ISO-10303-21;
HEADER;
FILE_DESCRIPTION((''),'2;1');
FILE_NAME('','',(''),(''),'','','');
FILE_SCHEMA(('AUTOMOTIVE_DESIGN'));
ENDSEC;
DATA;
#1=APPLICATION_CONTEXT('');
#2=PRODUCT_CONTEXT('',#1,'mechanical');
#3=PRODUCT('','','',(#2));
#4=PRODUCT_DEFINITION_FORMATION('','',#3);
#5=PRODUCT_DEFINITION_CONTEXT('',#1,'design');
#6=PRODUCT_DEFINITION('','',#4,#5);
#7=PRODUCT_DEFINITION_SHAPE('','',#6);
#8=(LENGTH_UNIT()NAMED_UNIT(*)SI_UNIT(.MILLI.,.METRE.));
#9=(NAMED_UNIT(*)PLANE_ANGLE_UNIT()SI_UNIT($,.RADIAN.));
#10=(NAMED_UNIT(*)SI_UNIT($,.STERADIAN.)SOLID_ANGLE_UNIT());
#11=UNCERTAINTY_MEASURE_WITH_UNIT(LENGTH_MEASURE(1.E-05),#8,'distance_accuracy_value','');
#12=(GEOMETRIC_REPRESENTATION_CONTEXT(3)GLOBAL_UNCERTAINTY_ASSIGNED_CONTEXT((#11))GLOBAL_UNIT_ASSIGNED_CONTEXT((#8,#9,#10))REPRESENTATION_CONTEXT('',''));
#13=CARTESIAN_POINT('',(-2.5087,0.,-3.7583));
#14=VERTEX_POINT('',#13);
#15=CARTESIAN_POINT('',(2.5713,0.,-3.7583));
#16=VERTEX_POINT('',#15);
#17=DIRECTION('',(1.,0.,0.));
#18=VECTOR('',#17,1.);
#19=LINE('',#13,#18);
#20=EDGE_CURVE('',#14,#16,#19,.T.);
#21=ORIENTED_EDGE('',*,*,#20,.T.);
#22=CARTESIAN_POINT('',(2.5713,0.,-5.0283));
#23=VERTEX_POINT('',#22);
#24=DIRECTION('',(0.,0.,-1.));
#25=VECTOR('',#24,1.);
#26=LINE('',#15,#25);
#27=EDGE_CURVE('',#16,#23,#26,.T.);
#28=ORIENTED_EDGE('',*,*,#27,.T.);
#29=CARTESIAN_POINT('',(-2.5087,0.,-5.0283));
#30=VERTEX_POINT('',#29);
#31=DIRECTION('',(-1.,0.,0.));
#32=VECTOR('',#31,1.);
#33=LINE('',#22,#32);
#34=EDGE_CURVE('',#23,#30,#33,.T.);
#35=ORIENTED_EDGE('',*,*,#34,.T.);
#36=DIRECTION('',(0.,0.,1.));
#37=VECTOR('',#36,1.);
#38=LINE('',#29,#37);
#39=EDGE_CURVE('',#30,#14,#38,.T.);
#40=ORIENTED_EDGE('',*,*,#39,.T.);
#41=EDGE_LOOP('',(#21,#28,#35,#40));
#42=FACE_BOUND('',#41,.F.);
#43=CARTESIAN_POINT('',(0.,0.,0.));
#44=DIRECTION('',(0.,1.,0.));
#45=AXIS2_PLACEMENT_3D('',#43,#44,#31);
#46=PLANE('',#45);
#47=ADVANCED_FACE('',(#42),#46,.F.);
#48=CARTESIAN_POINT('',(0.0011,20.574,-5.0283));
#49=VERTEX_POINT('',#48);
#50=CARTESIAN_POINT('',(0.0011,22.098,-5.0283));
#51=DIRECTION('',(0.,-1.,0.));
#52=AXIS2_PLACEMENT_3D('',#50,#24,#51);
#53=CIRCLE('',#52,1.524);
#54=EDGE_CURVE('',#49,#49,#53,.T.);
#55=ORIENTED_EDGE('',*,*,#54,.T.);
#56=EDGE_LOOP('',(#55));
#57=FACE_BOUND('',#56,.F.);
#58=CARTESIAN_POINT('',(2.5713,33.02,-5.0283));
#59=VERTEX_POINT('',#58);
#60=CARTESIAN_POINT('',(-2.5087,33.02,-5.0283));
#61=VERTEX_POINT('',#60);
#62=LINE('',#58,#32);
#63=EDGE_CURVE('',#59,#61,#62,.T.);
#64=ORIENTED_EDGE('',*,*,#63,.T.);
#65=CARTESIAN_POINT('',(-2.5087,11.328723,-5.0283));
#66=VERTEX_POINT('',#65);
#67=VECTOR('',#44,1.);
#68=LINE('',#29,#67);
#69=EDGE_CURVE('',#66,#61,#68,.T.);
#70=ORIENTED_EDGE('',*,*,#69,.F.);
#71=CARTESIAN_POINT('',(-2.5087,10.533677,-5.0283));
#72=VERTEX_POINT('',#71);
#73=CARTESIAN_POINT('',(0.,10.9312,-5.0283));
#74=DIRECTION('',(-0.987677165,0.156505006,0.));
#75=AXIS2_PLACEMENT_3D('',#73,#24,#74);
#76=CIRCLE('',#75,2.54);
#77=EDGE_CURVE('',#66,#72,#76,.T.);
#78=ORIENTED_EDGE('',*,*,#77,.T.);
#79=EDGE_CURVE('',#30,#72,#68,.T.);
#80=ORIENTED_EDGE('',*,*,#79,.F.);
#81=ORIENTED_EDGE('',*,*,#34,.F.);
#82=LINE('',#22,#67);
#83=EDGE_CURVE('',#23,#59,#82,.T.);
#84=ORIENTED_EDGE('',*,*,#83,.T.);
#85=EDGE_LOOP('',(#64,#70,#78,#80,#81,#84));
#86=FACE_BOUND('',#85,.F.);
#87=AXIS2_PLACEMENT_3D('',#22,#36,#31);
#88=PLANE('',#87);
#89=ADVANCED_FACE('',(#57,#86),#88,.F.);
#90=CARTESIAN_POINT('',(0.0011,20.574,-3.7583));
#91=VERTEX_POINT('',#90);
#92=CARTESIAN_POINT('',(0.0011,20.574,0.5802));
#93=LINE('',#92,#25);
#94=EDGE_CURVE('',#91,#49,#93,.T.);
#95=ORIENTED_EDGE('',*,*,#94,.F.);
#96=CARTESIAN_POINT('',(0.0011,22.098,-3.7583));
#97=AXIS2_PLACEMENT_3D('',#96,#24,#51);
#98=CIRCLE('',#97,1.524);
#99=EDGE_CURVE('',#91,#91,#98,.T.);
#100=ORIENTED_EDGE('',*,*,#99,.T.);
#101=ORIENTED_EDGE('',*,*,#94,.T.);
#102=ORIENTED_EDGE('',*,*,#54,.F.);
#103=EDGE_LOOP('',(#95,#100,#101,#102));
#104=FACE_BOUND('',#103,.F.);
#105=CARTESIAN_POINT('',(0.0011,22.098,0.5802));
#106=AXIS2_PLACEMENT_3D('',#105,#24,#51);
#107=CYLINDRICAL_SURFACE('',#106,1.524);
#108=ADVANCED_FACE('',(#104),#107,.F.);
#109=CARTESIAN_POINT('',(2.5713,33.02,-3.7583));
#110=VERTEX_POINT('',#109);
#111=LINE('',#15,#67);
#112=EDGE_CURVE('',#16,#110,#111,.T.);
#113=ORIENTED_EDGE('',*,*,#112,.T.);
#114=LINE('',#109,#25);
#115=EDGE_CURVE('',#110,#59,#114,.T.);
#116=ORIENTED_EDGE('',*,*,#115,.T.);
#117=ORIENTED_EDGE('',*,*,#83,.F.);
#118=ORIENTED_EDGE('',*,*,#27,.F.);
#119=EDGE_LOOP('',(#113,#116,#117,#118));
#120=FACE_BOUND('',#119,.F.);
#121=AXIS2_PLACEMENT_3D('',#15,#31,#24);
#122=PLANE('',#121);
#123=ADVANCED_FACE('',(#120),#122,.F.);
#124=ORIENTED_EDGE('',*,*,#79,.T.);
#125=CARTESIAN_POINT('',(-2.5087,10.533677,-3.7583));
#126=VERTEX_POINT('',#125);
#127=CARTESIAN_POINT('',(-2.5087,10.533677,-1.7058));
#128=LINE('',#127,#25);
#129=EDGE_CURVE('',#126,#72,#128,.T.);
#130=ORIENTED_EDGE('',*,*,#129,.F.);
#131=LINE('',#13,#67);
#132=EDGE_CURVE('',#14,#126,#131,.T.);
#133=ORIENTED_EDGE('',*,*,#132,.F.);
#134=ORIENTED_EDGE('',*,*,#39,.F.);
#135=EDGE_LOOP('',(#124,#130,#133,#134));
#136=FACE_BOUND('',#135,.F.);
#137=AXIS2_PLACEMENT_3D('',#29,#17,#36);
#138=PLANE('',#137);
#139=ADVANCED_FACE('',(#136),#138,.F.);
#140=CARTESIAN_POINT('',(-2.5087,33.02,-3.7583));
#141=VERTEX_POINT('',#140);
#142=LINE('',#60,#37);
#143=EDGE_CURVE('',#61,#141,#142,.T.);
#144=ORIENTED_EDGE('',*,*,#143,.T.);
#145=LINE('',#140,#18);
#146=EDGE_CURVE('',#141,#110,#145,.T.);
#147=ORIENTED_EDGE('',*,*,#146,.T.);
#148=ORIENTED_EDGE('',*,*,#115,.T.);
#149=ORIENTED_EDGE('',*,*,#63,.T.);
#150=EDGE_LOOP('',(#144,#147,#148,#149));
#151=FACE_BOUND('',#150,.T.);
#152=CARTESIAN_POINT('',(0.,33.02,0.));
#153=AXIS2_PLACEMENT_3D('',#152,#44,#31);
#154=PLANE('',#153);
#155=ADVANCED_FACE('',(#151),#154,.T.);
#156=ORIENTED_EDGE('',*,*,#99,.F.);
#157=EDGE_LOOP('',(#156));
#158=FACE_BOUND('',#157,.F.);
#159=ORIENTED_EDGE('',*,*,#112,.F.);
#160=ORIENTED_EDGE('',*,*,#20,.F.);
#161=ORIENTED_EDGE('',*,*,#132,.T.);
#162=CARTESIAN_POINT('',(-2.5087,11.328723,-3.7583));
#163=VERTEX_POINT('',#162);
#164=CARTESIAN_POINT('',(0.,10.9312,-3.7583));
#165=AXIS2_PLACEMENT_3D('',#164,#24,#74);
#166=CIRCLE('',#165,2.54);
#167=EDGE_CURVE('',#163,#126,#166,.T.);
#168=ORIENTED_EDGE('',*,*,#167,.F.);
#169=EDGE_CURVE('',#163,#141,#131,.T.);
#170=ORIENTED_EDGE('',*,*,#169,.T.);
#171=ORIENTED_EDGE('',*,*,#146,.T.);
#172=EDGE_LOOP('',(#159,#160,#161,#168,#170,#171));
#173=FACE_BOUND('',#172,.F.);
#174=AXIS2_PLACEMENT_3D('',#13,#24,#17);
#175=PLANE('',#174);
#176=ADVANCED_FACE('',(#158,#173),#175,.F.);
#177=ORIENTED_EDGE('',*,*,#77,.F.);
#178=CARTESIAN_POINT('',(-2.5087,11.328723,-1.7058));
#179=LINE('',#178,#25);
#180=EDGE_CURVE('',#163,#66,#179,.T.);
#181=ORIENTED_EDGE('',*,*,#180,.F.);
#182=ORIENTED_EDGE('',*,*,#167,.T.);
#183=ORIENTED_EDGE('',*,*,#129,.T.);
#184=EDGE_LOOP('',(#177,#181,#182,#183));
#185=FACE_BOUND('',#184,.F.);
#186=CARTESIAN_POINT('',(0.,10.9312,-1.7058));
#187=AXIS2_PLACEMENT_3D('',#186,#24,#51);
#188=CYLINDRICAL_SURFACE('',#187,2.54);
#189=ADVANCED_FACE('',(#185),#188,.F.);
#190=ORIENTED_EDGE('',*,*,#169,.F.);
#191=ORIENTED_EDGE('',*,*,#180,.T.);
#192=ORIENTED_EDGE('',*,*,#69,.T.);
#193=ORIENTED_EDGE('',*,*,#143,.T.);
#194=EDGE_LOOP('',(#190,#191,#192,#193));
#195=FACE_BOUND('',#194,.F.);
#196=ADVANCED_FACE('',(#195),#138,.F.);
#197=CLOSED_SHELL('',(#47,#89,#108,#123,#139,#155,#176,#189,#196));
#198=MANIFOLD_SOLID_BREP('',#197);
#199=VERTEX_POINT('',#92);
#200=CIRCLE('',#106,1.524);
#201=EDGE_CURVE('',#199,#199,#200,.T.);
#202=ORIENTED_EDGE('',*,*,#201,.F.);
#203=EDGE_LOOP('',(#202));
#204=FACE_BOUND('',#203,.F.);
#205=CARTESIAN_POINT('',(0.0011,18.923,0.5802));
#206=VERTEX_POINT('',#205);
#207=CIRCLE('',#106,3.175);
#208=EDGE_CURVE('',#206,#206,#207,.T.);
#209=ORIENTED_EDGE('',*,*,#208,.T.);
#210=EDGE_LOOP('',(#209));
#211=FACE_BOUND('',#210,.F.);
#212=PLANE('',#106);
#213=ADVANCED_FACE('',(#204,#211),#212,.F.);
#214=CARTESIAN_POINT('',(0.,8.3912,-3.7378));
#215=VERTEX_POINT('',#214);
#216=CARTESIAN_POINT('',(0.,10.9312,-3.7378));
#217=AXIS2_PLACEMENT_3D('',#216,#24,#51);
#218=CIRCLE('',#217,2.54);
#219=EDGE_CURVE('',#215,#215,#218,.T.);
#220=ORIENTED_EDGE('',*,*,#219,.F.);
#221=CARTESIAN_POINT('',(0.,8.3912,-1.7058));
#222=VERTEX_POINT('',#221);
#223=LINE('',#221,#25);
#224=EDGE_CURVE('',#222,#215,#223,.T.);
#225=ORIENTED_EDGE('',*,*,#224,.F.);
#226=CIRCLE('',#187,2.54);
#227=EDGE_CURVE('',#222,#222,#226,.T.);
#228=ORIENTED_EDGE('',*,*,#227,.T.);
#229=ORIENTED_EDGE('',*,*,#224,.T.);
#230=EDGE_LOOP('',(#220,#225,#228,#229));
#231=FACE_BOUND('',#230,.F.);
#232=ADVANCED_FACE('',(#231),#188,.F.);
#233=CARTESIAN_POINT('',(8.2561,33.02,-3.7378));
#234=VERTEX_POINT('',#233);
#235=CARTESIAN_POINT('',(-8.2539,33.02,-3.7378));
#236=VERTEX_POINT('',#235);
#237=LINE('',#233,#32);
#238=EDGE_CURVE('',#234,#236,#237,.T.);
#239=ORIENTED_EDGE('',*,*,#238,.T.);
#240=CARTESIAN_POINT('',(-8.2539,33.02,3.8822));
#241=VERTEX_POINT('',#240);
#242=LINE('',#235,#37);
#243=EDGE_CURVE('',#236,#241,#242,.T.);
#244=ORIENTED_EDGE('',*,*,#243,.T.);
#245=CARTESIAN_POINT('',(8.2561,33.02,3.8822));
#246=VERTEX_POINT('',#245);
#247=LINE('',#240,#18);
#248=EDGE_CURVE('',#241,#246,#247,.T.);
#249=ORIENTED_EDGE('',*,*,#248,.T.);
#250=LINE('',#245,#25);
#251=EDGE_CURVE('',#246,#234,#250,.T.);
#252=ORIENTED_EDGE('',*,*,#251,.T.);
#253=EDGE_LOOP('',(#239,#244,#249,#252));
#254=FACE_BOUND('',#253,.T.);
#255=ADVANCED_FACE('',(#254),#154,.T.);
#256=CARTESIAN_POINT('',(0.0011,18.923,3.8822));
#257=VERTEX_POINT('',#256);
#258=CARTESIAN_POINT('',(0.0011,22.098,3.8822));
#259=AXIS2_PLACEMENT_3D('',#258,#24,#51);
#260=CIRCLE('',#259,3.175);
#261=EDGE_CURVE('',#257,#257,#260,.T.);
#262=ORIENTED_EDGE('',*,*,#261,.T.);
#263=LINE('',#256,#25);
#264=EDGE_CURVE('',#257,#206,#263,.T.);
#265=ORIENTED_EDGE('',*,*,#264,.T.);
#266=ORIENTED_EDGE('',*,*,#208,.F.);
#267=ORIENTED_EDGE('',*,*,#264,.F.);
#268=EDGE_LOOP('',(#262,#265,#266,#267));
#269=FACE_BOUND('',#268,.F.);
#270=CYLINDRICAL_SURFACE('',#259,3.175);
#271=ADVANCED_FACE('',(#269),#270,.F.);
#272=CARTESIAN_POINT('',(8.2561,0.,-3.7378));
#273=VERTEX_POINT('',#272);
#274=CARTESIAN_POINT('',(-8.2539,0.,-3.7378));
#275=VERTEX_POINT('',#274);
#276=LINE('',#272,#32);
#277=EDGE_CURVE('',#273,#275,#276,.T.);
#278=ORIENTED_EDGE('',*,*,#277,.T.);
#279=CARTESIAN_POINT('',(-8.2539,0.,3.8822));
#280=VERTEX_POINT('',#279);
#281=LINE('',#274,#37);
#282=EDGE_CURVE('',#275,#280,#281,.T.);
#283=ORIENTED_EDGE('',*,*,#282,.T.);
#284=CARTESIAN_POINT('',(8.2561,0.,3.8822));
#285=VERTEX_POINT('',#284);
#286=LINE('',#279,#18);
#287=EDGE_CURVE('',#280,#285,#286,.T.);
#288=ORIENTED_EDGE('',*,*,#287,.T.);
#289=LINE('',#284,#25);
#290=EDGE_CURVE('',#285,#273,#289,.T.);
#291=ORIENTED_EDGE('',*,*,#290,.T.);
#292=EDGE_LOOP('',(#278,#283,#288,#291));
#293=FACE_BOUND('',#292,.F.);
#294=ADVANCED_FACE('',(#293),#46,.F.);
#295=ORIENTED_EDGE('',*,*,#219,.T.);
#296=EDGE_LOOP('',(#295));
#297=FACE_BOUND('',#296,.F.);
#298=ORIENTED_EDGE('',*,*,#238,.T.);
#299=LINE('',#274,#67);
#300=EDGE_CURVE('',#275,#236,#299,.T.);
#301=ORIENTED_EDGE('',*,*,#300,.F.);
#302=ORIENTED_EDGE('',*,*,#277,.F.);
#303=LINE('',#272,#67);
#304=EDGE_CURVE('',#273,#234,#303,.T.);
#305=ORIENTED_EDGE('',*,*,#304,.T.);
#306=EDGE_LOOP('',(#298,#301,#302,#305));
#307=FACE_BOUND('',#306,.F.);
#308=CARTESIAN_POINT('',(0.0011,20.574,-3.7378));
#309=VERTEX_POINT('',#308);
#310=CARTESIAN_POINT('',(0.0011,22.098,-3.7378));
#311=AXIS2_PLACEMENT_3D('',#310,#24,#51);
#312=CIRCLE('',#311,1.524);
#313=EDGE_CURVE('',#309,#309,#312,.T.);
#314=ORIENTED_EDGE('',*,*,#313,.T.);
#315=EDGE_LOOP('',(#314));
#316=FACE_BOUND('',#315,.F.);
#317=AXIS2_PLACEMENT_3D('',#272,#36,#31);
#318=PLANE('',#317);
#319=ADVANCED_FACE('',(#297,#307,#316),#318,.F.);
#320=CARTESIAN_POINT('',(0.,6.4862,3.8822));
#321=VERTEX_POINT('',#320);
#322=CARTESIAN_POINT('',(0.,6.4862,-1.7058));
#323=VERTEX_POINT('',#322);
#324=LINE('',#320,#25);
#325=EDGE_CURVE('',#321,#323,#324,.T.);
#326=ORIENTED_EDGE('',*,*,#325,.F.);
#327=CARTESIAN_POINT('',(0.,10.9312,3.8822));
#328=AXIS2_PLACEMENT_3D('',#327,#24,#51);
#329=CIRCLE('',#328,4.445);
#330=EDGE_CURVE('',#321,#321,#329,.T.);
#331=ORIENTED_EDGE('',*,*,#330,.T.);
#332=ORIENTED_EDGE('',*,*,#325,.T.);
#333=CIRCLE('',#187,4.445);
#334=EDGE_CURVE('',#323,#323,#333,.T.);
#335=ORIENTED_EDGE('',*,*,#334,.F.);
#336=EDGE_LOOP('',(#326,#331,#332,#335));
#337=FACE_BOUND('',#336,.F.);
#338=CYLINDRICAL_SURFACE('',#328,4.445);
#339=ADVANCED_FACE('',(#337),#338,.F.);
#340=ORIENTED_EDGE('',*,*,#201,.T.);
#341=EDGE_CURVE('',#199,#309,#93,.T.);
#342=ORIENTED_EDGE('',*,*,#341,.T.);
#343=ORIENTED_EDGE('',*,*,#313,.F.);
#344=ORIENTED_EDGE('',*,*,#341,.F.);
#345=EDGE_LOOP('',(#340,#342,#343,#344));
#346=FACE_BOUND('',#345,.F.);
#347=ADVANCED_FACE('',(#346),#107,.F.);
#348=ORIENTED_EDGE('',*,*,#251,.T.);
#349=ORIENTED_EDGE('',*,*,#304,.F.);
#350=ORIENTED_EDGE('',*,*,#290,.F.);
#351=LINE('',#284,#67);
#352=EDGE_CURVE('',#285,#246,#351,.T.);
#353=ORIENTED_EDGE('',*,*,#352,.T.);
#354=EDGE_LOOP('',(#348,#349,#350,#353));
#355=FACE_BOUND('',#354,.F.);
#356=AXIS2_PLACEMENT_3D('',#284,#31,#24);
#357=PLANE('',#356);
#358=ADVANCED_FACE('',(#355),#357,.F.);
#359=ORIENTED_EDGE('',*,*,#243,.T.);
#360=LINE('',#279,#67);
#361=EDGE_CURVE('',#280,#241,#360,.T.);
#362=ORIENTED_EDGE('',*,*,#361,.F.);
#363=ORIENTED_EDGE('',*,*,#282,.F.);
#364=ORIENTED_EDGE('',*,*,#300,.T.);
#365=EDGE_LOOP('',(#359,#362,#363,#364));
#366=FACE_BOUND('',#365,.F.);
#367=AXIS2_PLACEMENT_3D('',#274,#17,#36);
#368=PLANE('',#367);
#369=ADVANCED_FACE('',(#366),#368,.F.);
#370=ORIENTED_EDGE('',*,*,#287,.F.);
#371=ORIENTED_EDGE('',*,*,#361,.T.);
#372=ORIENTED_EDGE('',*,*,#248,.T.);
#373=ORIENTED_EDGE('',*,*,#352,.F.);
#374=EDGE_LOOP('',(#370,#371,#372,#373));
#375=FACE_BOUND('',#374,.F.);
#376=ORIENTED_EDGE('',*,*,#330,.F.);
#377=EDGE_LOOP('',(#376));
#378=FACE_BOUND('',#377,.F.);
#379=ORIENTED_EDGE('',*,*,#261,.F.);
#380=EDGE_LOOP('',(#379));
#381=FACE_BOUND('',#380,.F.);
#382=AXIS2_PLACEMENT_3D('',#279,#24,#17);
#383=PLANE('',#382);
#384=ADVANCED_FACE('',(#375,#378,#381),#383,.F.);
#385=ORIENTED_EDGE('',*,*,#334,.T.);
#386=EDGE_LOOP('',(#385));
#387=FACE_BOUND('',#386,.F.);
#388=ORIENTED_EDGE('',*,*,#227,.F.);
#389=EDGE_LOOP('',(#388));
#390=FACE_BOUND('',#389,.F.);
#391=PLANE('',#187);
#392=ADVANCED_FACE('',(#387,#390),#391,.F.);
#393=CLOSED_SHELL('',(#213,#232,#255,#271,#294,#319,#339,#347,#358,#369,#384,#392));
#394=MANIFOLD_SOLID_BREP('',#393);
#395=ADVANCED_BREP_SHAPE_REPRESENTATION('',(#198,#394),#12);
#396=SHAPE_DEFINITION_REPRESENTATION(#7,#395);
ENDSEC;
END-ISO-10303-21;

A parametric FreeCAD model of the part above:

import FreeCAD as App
import Part
import Sketcher
from FreeCAD import Vector
Q = App.Units.Quantity

doc = App.newDocument("Part")
body = doc.addObject("PartDesign::Body", "Body")
body.AllowCompound = True

# Sketch on XZ plane
sketch1 = body.newObject("Sketcher::SketchObject", "Sketch")
sketch1.AttachmentSupport = (doc.getObject("XZ_Plane"), [""])
sketch1.MapMode = "FlatFace"
sketch1.addGeometry(Part.LineSegment(Vector(-8.3, -3.7, 0), Vector(-8.3, 3.9, 0)), False)
sketch1.addGeometry(Part.LineSegment(Vector(-8.3, 3.9, 0), Vector(8.3, 3.9, 0)), False)
sketch1.addGeometry(Part.LineSegment(Vector(8.3, 3.9, 0), Vector(8.3, -3.7, 0)), False)
sketch1.addGeometry(Part.LineSegment(Vector(8.3, -3.7, 0), Vector(-8.3, -3.7, 0)), False)
sketch1.addGeometry(Part.LineSegment(Vector(-2.5, -5, 0), Vector(-2.5, -3.8, 0)), False)
sketch1.addGeometry(Part.LineSegment(Vector(-2.5, -3.8, 0), Vector(2.6, -3.8, 0)), False)
sketch1.addGeometry(Part.LineSegment(Vector(2.6, -3.8, 0), Vector(2.6, -5, 0)), False)
sketch1.addGeometry(Part.LineSegment(Vector(2.6, -5, 0), Vector(-2.5, -5, 0)), False)
sketch1.addConstraint(Sketcher.Constraint("Coincident", 0, 2, 1, 1))
sketch1.addConstraint(Sketcher.Constraint("Coincident", 1, 2, 2, 1))
sketch1.addConstraint(Sketcher.Constraint("Coincident", 2, 2, 3, 1))
sketch1.addConstraint(Sketcher.Constraint("Coincident", 3, 2, 0, 1))
sketch1.addConstraint(Sketcher.Constraint("Coincident", 4, 2, 5, 1))
sketch1.addConstraint(Sketcher.Constraint("Coincident", 5, 2, 6, 1))
sketch1.addConstraint(Sketcher.Constraint("Coincident", 6, 2, 7, 1))
sketch1.addConstraint(Sketcher.Constraint("Coincident", 7, 2, 4, 1))
sketch1.addConstraint(Sketcher.Constraint("Vertical", 0))
sketch1.addConstraint(Sketcher.Constraint("Horizontal", 1))
sketch1.addConstraint(Sketcher.Constraint("Vertical", 2))
sketch1.addConstraint(Sketcher.Constraint("Horizontal", 3))
sketch1.addConstraint(Sketcher.Constraint("Vertical", 4))
sketch1.addConstraint(Sketcher.Constraint("Horizontal", 5))
sketch1.addConstraint(Sketcher.Constraint("Vertical", 6))
sketch1.addConstraint(Sketcher.Constraint("Horizontal", 7))
sketch1.addConstraint(Sketcher.Constraint("DistanceX", 5, 1, 5, 2, Q("0.2 in")))
sketch1.addConstraint(Sketcher.Constraint("DistanceY", 0, 1, 0, 2, Q("0.3 in")))
sketch1.addConstraint(Sketcher.Constraint("DistanceX", 1, 1, 1, 2, Q("0.65 in")))
sketch1.addConstraint(Sketcher.Constraint("DistanceY", 4, 1, 4, 2, Q("0.05 in")))
sketch1.addConstraint(Sketcher.Constraint("DistanceX", 3, 2, 4, 2, Q("0.2262 in")))
sketch1.addConstraint(Sketcher.Constraint("DistanceY", 4, 2, 3, 2, Q("0.0008 in")))
sketch1.addConstraint(Sketcher.Constraint("DistanceX", 0, 2, -1, 1, Q("8.254 mm")))
sketch1.addConstraint(Sketcher.Constraint("DistanceY", -1, 1, 0, 2, Q("3.8822 mm")))
pad1 = body.newObject("PartDesign::Pad", "Pad")
pad1.Profile = sketch1
pad1.Length = Q("1.3 in")
pad1.Reversed = True

# Sketch on XY plane
sketch2 = body.newObject("Sketcher::SketchObject", "Sketch001")
sketch2.AttachmentSupport = (doc.getObject("XY_Plane"), [""])
sketch2.MapMode = "FlatFace"
sketch2.AttachmentOffset = App.Placement(Vector(0, 0, 3.8822), App.Rotation())
sketch2.addGeometry(Part.Circle(Vector(0, 22.1, 0), Vector(0, 0, 1), 1.5), False)
sketch2.addConstraint(Sketcher.Constraint("Diameter", 0, Q("0.12 in")))
sketch2.addConstraint(Sketcher.Constraint("DistanceY", -1, 1, 0, 3, Q("0.87 in")))
sketch2.addConstraint(Sketcher.Constraint("DistanceX", -1, 1, 0, 3, Q("0.001 mm")))
doc.recompute()
hole = body.newObject("PartDesign::Hole", "Hole")
hole.Profile = sketch2
hole.ThreadType = "None"
hole.Diameter = Q("0.12 in")
hole.DepthType = "ThroughAll"
hole.HoleCutType = "Counterbore"
hole.HoleCutDiameter = Q("0.25 in")
hole.HoleCutDepth = Q("0.13 in")

# Sketch on XY plane
sketch3 = body.newObject("Sketcher::SketchObject", "Sketch002")
sketch3.AttachmentSupport = (doc.getObject("XY_Plane"), [""])
sketch3.MapMode = "FlatFace"
sketch3.AttachmentOffset = App.Placement(Vector(0, 0, 3.8822), App.Rotation())
sketch3.addGeometry(Part.Circle(Vector(0, 10.9, 0), Vector(0, 0, 1), 2.5), False)
sketch3.addConstraint(Sketcher.Constraint("PointOnObject", 0, 3, -2))
sketch3.addConstraint(Sketcher.Constraint("Diameter", 0, Q("0.2 in")))
sketch3.addConstraint(Sketcher.Constraint("DistanceY", -1, 1, 0, 3, Q("10.9312 mm")))
doc.recompute()
hole2 = body.newObject("PartDesign::Hole", "Hole001")
hole2.Profile = sketch3
hole2.ThreadType = "None"
hole2.Diameter = Q("0.2 in")
hole2.DepthType = "ThroughAll"
hole2.HoleCutType = "Counterbore"
hole2.HoleCutDiameter = Q("0.35 in")
hole2.HoleCutDepth = Q("0.22 in")

doc.recompute()
